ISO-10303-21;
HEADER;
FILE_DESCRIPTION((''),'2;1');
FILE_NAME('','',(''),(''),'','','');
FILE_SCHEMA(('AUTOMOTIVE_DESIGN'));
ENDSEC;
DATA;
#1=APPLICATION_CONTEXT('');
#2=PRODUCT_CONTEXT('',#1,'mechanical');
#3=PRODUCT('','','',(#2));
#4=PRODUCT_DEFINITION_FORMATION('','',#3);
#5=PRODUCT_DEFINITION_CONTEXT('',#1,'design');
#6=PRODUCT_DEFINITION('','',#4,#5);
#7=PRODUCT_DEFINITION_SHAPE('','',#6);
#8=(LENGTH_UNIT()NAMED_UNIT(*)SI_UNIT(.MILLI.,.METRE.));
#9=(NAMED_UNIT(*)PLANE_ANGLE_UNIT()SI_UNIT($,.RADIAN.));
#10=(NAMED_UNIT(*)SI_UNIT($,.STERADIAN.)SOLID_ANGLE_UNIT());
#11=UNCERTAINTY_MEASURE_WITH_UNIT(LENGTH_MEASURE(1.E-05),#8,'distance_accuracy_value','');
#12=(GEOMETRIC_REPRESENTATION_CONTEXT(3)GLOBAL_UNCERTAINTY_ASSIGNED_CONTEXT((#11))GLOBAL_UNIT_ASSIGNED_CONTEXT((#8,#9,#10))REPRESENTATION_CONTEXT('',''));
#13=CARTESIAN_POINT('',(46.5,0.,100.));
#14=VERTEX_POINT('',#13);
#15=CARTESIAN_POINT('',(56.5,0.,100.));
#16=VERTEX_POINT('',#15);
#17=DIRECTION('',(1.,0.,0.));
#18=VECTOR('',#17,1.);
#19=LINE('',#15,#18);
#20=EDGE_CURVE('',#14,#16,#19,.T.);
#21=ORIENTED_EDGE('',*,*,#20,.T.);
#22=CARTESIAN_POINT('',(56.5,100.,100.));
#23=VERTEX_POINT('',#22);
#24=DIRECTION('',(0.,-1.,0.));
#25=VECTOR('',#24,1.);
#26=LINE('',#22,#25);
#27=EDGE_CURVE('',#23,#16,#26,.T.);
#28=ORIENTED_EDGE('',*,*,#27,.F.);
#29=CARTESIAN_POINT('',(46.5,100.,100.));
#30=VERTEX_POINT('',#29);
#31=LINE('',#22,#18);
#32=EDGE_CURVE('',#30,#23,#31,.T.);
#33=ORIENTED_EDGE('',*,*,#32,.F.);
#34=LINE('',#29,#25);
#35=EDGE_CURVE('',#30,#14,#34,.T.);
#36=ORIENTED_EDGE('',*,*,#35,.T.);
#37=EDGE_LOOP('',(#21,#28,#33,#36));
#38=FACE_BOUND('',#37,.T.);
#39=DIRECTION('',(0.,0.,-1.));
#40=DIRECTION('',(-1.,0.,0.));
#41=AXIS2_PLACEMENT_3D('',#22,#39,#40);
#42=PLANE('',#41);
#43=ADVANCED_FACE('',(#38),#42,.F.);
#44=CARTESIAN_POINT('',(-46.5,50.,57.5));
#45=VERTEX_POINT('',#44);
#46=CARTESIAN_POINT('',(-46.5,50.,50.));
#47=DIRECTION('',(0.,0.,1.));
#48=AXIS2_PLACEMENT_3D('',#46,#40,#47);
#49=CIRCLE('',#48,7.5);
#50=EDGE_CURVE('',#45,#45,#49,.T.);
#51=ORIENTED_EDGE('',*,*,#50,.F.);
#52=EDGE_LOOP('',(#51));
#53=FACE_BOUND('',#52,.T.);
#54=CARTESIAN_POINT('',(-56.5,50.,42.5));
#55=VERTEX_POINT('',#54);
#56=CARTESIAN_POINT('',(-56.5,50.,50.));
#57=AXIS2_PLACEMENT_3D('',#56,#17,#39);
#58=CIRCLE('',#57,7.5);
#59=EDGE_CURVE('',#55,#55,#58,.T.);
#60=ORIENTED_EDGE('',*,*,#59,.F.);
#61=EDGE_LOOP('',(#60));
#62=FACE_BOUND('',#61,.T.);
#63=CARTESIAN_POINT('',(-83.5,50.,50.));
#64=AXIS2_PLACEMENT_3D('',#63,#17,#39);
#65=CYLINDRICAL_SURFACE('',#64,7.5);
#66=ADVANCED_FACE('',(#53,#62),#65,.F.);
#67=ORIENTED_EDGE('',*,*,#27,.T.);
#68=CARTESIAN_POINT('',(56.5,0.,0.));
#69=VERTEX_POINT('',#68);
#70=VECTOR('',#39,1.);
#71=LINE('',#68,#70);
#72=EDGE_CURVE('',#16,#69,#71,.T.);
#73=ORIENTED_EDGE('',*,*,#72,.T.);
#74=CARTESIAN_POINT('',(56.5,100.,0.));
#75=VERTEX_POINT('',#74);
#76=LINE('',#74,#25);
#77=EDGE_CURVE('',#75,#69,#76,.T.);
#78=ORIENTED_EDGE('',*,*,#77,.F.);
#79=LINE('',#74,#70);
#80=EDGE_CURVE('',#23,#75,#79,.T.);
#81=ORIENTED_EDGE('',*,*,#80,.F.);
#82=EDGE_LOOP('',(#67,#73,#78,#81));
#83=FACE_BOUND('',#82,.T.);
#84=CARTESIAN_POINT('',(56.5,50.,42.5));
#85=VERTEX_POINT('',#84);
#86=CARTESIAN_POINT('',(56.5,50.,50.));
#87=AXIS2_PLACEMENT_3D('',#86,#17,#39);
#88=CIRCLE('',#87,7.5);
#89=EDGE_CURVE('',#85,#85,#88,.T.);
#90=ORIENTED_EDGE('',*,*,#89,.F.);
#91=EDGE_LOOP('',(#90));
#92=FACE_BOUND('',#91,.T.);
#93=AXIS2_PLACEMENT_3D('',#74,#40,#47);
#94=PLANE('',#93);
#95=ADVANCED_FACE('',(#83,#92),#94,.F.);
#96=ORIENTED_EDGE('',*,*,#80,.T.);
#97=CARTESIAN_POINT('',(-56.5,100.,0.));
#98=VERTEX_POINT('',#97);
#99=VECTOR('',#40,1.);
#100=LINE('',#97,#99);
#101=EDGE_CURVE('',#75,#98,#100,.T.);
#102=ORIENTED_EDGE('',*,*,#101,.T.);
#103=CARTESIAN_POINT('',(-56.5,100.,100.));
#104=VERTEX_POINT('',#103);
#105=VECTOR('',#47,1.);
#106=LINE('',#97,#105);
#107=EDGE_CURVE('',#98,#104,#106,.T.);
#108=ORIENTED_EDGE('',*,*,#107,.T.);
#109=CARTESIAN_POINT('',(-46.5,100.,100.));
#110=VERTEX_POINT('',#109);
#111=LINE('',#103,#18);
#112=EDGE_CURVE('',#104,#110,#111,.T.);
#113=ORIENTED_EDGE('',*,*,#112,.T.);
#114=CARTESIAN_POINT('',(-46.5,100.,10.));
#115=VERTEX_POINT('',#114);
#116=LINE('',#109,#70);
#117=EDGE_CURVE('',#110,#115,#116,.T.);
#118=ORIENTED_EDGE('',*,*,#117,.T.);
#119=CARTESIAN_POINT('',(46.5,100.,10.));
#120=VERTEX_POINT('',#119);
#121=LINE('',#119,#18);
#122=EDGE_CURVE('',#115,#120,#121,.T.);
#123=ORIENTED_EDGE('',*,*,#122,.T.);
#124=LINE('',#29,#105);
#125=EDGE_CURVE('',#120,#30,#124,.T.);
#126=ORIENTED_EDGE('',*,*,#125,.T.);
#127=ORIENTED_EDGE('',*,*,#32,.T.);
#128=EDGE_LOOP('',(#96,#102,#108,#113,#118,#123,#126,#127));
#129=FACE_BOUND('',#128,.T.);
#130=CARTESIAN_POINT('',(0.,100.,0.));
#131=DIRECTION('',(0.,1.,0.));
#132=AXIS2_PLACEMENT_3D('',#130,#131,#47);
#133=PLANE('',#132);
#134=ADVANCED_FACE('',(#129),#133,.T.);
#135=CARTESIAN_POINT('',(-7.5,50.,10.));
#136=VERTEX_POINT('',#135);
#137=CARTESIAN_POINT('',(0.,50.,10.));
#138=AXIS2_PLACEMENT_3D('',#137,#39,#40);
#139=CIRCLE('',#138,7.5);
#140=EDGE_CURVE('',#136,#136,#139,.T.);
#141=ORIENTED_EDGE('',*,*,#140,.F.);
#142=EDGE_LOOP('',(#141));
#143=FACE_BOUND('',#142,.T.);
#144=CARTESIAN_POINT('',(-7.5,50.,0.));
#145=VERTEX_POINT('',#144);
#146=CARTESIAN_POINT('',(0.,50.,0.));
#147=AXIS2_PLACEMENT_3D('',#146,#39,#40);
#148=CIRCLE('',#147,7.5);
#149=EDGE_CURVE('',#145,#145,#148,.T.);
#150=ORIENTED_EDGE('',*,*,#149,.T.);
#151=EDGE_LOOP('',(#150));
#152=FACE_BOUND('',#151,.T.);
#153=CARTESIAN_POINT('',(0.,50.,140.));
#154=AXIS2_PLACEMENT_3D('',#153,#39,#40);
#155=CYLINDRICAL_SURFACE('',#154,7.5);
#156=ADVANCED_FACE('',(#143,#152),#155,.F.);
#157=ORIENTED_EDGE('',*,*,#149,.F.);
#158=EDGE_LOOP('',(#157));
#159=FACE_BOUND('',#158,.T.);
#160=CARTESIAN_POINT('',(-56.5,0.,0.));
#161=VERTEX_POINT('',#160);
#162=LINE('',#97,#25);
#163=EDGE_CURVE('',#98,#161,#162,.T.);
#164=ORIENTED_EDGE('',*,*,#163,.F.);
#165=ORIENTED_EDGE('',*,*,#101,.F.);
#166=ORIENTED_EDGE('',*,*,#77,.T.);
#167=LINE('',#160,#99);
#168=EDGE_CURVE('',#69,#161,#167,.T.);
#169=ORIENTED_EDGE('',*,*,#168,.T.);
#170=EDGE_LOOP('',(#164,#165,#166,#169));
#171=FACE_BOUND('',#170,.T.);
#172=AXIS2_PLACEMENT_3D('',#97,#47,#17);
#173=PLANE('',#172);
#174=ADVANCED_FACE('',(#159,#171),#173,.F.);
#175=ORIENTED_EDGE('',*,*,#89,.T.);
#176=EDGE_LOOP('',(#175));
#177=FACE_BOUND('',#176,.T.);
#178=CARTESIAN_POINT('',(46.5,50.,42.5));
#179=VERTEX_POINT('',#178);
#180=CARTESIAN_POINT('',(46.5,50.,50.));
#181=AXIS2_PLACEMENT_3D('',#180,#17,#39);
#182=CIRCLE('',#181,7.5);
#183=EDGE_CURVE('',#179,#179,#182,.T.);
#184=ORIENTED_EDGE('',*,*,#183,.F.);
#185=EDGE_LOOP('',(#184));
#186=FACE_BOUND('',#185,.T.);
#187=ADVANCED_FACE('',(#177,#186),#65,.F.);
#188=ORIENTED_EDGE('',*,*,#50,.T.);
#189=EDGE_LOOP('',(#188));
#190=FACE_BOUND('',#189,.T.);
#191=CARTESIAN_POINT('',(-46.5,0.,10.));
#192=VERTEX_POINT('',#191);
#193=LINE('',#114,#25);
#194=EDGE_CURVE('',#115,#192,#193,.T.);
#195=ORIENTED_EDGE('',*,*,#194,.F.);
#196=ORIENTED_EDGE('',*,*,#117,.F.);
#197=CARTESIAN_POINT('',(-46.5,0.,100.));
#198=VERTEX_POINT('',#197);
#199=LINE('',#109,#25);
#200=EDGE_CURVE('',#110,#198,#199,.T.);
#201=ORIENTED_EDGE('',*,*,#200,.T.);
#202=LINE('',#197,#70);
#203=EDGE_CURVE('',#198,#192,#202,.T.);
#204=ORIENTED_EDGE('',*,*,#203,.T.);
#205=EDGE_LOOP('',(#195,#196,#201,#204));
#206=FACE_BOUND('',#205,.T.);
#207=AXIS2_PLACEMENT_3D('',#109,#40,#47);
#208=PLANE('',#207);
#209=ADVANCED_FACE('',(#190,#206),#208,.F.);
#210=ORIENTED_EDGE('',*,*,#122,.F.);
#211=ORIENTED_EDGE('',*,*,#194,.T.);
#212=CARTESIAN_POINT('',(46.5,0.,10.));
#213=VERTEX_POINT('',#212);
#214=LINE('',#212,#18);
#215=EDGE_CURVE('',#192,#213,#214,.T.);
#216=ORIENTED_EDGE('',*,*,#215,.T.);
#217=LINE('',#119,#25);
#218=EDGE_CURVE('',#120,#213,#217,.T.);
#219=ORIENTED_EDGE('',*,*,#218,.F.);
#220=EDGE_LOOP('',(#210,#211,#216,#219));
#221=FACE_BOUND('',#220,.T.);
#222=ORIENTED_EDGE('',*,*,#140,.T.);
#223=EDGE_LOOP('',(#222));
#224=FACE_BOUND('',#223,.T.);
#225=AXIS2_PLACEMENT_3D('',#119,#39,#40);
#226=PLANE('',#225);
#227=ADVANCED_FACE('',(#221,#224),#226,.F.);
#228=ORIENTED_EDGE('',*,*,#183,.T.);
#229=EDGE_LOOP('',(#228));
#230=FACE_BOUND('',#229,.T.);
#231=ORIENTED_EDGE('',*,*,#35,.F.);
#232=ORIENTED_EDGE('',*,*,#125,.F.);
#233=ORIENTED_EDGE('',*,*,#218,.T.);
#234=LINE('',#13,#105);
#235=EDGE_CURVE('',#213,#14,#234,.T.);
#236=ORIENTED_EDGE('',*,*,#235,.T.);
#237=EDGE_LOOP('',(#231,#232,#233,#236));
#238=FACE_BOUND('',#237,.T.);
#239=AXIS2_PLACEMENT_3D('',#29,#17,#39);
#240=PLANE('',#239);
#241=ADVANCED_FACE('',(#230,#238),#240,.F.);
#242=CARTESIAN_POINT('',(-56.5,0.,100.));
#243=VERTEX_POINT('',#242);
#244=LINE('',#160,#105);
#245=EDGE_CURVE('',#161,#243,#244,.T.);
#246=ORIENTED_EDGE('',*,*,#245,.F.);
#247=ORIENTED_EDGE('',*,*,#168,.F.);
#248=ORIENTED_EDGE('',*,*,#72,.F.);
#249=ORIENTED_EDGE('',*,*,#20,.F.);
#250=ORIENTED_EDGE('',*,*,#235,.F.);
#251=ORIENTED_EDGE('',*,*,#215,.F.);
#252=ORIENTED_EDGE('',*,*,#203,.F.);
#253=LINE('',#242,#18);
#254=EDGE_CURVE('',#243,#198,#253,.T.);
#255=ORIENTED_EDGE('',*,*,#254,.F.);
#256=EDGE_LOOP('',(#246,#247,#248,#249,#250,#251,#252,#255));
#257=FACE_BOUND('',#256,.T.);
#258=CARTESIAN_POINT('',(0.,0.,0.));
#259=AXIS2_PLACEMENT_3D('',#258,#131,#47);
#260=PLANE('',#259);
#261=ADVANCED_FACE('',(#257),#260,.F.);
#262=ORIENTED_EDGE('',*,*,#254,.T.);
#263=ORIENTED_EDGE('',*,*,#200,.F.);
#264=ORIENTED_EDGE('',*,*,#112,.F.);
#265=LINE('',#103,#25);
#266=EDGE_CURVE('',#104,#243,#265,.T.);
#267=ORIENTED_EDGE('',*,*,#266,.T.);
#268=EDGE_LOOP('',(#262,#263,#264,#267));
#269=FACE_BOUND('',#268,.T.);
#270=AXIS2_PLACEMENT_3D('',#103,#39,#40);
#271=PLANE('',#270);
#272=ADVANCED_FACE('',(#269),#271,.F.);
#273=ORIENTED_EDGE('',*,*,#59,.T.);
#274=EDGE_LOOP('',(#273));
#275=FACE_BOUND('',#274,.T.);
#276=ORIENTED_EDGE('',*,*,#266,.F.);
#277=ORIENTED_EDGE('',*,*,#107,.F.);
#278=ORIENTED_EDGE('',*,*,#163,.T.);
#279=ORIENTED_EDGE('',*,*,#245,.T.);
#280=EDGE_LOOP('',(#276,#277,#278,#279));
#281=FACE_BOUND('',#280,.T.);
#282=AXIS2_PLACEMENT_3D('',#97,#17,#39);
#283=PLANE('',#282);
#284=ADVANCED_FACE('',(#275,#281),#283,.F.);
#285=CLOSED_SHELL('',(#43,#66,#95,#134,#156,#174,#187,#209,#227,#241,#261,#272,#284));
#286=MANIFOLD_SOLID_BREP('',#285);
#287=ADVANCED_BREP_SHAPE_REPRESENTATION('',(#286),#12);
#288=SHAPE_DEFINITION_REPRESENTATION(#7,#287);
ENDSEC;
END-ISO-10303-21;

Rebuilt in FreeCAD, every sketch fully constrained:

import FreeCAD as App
import Part
import Sketcher


def add_polygon(sketch, points):
    """Adds a closed chain of lines whose ends are joined by coincident constraints."""
    first, n = sketch.GeometryCount, len(points)
    for a, b in zip(points, points[1:] + points[:1]):
        sketch.addGeometry(Part.LineSegment(App.Vector(*a, 0), App.Vector(*b, 0)), False)
    for i in range(n):
        sketch.addConstraint(Sketcher.Constraint("Coincident", first + i, 2, first + (i + 1) % n, 1))

doc = App.newDocument("Part")
body = doc.addObject("PartDesign::Body", "Body")

sketch1 = body.newObject("Sketcher::SketchObject", "Sketch")
sketch1.AttachmentSupport = (doc.getObject("XZ_Plane"), [""])
sketch1.MapMode = "FlatFace"
add_polygon(sketch1, [(56, 0), (-56, 0), (-56, 100), (-46, 100), (-46, 10), (46, 10), (46, 100), (56, 100)])
sketch1.addConstraint([
    Sketcher.Constraint("Horizontal", 0),
    Sketcher.Constraint("Vertical", 1),
    Sketcher.Constraint("Horizontal", 2),
    Sketcher.Constraint("Vertical", 3),
    Sketcher.Constraint("Horizontal", 4),
    Sketcher.Constraint("Vertical", 5),
    Sketcher.Constraint("Horizontal", 6),
    Sketcher.Constraint("Vertical", 7),
    Sketcher.Constraint("Symmetric", 0, 2, 7, 2, -1, 1),
    Sketcher.Constraint("Symmetric", 2, 2, 5, 2, -2),
    Sketcher.Constraint("DistanceX", 0, 2, 0, 1, 113.0),
    Sketcher.Constraint("DistanceX", 2, 1, 2, 2, 10.0),
    Sketcher.Constraint("DistanceY", 1, 1, 1, 2, 100.0),
    Sketcher.Constraint("DistanceY", 3, 2, 3, 1, 90.0),
])
pad1 = body.newObject("PartDesign::Pad", "Pad")
pad1.Profile = sketch1
pad1.Length = 100
pad1.Reversed = True

sketch2 = body.newObject("Sketcher::SketchObject", "Sketch001")
sketch2.AttachmentSupport = (doc.getObject("YZ_Plane"), [""])
sketch2.MapMode = "FlatFace"
sketch2.AttachmentOffset = App.Placement(App.Vector(0, 0, 56.5), App.Rotation())
sketch2.addGeometry(Part.Circle(App.Vector(50, 50, 0), App.Vector(0, 0, 1), 8), False)
sketch2.addConstraint([
    Sketcher.Constraint("Diameter", 0, 15.0),
    Sketcher.Constraint("DistanceX", -1, 1, 0, 3, 50.0),
    Sketcher.Constraint("DistanceY", -1, 1, 0, 3, 50.0),
])
pocket1 = body.newObject("PartDesign::Pocket", "Pocket")
pocket1.Profile = sketch2
pocket1.Length = 140

sketch3 = body.newObject("Sketcher::SketchObject", "Sketch002")
sketch3.AttachmentSupport = (doc.getObject("XY_Plane"), [""])
sketch3.MapMode = "FlatFace"
sketch3.addGeometry(Part.Circle(App.Vector(0, 50, 0), App.Vector(0, 0, 1), 8), False)
sketch3.addConstraint([
    Sketcher.Constraint("PointOnObject", 0, 3, -2),
    Sketcher.Constraint("Diameter", 0, 15.0),
    Sketcher.Constraint("DistanceY", -1, 1, 0, 3, 50.0),
])
pocket2 = body.newObject("PartDesign::Pocket", "Pocket001")
pocket2.Profile = sketch3
pocket2.Length = 140
pocket2.Reversed = True

doc.recompute()
